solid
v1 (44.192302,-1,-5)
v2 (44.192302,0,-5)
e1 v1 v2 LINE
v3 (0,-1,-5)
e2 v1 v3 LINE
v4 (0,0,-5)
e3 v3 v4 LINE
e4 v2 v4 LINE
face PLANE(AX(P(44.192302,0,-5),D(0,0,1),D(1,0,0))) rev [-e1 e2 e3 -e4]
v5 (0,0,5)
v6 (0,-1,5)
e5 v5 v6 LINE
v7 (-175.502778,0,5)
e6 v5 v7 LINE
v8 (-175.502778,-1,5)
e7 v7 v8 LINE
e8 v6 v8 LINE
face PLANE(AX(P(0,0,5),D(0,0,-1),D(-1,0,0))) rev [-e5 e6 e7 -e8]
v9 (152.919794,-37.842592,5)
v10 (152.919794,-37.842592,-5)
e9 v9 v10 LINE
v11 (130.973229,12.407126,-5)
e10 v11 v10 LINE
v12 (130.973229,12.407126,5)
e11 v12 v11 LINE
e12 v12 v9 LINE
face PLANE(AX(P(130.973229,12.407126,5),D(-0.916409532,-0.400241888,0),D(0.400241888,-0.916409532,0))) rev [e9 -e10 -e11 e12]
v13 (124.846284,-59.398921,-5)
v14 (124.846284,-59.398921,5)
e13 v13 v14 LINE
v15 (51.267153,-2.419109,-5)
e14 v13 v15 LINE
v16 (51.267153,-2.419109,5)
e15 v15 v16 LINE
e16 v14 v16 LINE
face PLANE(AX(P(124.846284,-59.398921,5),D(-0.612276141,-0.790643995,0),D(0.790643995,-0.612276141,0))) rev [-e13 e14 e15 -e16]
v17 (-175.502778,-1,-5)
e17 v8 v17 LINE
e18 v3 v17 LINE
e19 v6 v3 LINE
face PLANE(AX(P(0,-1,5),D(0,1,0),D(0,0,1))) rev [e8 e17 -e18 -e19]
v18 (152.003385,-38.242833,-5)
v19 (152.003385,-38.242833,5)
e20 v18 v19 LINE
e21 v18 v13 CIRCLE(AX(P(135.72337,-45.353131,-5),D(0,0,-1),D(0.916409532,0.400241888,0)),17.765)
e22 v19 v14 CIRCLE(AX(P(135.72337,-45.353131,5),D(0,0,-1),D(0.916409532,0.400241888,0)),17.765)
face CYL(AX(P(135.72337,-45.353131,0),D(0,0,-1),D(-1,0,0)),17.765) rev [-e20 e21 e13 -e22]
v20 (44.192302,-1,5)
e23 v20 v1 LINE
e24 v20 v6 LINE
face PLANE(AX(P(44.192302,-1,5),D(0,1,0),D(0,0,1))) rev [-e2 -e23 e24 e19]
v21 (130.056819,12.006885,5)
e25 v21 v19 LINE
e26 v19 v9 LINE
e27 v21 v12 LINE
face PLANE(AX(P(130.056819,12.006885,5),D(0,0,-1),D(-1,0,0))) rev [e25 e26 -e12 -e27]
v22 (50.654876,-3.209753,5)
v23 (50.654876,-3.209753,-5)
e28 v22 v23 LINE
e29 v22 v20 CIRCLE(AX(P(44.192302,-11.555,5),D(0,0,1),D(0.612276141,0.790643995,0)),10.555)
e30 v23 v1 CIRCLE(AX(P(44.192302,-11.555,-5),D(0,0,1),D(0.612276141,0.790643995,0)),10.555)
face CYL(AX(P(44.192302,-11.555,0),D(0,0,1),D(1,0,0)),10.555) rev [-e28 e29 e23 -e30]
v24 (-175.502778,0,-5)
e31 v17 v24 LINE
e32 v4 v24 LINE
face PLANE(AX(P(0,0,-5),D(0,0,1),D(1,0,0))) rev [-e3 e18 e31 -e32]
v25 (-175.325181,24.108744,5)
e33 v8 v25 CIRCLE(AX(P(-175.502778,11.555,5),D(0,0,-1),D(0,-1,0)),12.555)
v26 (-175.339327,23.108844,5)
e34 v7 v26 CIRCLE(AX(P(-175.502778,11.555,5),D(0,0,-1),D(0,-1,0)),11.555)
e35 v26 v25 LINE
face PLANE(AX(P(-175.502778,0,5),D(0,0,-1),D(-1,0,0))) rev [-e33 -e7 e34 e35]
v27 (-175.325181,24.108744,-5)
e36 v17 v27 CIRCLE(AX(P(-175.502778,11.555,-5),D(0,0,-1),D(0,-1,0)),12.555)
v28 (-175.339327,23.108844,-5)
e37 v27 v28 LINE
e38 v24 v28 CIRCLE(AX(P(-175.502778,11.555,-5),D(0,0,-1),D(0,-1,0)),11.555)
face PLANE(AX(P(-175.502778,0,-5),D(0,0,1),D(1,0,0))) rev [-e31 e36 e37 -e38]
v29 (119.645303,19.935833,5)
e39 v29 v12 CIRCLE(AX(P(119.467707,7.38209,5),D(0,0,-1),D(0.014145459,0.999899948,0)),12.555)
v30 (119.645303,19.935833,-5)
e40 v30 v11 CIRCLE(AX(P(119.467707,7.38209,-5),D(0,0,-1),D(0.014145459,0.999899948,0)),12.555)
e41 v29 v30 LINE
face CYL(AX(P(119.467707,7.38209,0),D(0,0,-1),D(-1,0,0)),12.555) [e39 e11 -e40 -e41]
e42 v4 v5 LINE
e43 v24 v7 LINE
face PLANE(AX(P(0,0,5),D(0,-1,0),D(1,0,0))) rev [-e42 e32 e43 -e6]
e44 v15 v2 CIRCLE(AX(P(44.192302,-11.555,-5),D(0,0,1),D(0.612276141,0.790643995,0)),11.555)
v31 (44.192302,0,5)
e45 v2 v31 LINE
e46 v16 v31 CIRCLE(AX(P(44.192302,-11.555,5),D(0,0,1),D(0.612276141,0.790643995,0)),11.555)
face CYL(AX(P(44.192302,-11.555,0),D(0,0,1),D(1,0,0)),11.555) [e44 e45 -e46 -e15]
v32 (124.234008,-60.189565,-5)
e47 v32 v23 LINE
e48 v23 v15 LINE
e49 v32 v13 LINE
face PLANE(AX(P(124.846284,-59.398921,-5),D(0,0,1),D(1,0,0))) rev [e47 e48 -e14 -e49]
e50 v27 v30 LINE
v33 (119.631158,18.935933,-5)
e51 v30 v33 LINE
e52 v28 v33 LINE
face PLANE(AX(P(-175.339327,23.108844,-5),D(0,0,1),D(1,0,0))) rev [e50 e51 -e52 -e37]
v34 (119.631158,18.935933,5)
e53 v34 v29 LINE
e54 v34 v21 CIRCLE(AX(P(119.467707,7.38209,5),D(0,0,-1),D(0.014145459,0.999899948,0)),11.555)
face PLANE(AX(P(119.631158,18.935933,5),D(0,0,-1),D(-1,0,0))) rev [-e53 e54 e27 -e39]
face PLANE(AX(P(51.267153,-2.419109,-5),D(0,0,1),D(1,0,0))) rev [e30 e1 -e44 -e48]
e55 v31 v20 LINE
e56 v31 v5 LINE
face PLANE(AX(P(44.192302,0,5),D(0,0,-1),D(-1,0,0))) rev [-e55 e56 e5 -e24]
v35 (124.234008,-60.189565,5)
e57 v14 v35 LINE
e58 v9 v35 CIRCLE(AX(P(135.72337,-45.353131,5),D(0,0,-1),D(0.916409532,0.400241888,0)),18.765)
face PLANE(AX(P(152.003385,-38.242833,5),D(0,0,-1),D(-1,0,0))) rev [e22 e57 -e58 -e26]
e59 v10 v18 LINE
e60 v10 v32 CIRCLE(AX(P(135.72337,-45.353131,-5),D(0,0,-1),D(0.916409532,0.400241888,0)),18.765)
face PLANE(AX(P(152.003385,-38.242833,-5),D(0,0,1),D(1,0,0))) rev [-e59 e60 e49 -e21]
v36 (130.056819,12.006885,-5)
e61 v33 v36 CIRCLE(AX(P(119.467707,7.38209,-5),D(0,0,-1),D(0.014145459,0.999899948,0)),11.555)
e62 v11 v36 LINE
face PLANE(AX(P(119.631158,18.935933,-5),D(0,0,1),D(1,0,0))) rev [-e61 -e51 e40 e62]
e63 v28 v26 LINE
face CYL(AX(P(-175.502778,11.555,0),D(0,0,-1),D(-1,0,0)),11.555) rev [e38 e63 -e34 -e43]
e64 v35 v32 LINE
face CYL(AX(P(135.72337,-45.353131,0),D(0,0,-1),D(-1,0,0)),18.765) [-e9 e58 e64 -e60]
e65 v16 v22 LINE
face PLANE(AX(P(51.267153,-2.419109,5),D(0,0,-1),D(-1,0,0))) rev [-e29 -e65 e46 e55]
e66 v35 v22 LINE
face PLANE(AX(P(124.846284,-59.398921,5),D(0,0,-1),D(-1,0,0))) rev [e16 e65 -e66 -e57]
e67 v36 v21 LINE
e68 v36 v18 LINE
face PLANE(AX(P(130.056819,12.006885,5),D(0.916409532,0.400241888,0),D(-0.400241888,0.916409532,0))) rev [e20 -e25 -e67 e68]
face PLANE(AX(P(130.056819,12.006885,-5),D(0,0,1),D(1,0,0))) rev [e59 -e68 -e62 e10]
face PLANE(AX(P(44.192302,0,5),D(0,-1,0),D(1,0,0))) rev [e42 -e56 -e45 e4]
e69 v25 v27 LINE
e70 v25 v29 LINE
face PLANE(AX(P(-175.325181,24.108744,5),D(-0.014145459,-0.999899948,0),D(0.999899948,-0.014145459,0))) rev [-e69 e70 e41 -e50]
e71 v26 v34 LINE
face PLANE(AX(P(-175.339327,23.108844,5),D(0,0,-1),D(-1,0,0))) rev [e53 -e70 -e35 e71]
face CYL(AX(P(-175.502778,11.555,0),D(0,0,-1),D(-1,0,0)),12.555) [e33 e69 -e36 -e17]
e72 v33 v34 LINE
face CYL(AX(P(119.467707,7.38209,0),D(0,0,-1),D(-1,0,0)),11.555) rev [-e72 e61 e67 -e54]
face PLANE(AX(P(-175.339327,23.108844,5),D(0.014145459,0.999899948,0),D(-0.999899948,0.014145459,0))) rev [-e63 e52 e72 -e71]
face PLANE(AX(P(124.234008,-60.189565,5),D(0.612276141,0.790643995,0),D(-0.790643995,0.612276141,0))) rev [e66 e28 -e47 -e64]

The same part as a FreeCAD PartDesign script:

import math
import FreeCAD as App
import Part
import Sketcher
from FreeCAD import Vector
Q = App.Units.Quantity


def add_polygon(sketch, points):
    """Adds a closed chain of lines whose ends are joined by coincident constraints."""
    first, n = sketch.GeometryCount, len(points)
    for a, b in zip(points, points[1:] + points[:1]):
        sketch.addGeometry(Part.LineSegment(App.Vector(*a, 0), App.Vector(*b, 0)), False)
    for i in range(n):
        sketch.addConstraint(Sketcher.Constraint("Coincident", first + i, 2, first + (i + 1) % n, 1))

doc = App.newDocument("Part")
body = doc.addObject("PartDesign::Body", "Body")

# Sketch on YZ plane
sketch1 = body.newObject("Sketcher::SketchObject", "Sketch")
sketch1.AttachmentSupport = (doc.getObject("YZ_Plane"), [""])
sketch1.MapMode = "FlatFace"
add_polygon(sketch1, [(0, 5), (-1, 5), (-1, -5), (0, -5)])  # lines 0-3
sketch1.addConstraint(Sketcher.Constraint("Horizontal", 0))
sketch1.addConstraint(Sketcher.Constraint("Vertical", 1))
sketch1.addConstraint(Sketcher.Constraint("Horizontal", 2))
sketch1.addConstraint(Sketcher.Constraint("Vertical", 3))
sketch1.addConstraint(Sketcher.Constraint("Symmetric", 2, 2, 3, 2, -1, 1))
sketch1.addConstraint(Sketcher.Constraint("DistanceX", 0, 2, 0, 1, Q("1 mm")))
sketch1.addConstraint(Sketcher.Constraint("DistanceY", 1, 2, 1, 1, Q("10 mm")))

# Sketch on XY plane
sketch2 = body.newObject("Sketcher::SketchObject", "Sketch001")
sketch2.AttachmentSupport = (doc.getObject("XY_Plane"), [""])
sketch2.MapMode = "FlatFace"
sketch2.addGeometry(Part.LineSegment(Vector(152.003385, -38.242833, 0), Vector(130.056819, 12.006885, 0)), False)
sketch2.addGeometry(Part.ArcOfCircle(Part.Circle(Vector(119.467707, 7.38209, 0), Vector(0, 0, 1), 11.555), math.radians(23.593301), math.radians(89.189498)), False)
sketch2.addGeometry(Part.LineSegment(Vector(119.631158, 18.935933, 0), Vector(-175.339327, 23.108844, 0)), False)
sketch2.addGeometry(Part.ArcOfCircle(Part.Circle(Vector(-175.502778, 11.555, 0), Vector(0, 0, 1), 11.555), math.radians(89.189498), math.radians(270)), False)
sketch2.addGeometry(Part.LineSegment(Vector(-175.502778, 0, 0), Vector(44.192302, 0, 0)), False)
sketch2.addGeometry(Part.ArcOfCircle(Part.Circle(Vector(44.192302, -11.555, 0), Vector(0, 0, 1), 11.555), math.radians(52.245735), math.radians(90)), False)
sketch2.addGeometry(Part.LineSegment(Vector(51.267153, -2.419109, 0), Vector(124.846284, -59.398921, 0)), False)
sketch2.addGeometry(Part.ArcOfCircle(Part.Circle(Vector(135.72337, -45.353131, 0), Vector(0, 0, 1), 17.765), math.radians(-127.754265), math.radians(23.593301)), False)
sketch2.addConstraint(Sketcher.Constraint("Tangent", 0, 2, 1, 1))
sketch2.addConstraint(Sketcher.Constraint("Tangent", 1, 2, 2, 1))
sketch2.addConstraint(Sketcher.Constraint("Tangent", 2, 2, 3, 1))
sketch2.addConstraint(Sketcher.Constraint("Tangent", 3, 2, 4, 1))
sketch2.addConstraint(Sketcher.Constraint("Tangent", 4, 2, 5, 2))
sketch2.addConstraint(Sketcher.Constraint("Tangent", 5, 1, 6, 1))
sketch2.addConstraint(Sketcher.Constraint("Tangent", 6, 2, 7, 1))
sketch2.addConstraint(Sketcher.Constraint("Tangent", 7, 2, 0, 1))
sketch2.addConstraint(Sketcher.Constraint("Horizontal", 4))
sketch2.addConstraint(Sketcher.Constraint("Equal", 1, 3))
sketch2.addConstraint(Sketcher.Constraint("Equal", 3, 5))
sketch2.addConstraint(Sketcher.Constraint("PointOnObject", 3, 2, -1))
sketch2.addConstraint(Sketcher.Constraint("Distance", 2, Q("295 mm")))
sketch2.addConstraint(Sketcher.Constraint("Radius", 1, Q("11.555 mm")))
sketch2.addConstraint(Sketcher.Constraint("Radius", 7, Q("17.765 mm")))
sketch2.addConstraint(Sketcher.Constraint("DistanceX", 4, 1, 4, 2, Q("219.695079 mm")))
sketch2.addConstraint(Sketcher.Constraint("DistanceX", -1, 1, 5, 3, Q("44.192302 mm")))
sketch2.addConstraint(Sketcher.Constraint("DistanceY", 5, 1, 1, 3, Q("9.801198 mm")))
sketch2.addConstraint(Sketcher.Constraint("DistanceX", 6, 2, 7, 2, Q("27.157101 mm")))
sketch2.addConstraint(Sketcher.Constraint("Distance", 6, Q("93.062278 mm")))
doc.recompute()

additivepipe = body.newObject("PartDesign::AdditivePipe", "AdditivePipe")
additivepipe.Profile = sketch1
additivepipe.Spine = (sketch2, ["Edge1", "Edge2", "Edge3", "Edge4", "Edge5", "Edge6", "Edge7", "Edge8"])

doc.recompute()
